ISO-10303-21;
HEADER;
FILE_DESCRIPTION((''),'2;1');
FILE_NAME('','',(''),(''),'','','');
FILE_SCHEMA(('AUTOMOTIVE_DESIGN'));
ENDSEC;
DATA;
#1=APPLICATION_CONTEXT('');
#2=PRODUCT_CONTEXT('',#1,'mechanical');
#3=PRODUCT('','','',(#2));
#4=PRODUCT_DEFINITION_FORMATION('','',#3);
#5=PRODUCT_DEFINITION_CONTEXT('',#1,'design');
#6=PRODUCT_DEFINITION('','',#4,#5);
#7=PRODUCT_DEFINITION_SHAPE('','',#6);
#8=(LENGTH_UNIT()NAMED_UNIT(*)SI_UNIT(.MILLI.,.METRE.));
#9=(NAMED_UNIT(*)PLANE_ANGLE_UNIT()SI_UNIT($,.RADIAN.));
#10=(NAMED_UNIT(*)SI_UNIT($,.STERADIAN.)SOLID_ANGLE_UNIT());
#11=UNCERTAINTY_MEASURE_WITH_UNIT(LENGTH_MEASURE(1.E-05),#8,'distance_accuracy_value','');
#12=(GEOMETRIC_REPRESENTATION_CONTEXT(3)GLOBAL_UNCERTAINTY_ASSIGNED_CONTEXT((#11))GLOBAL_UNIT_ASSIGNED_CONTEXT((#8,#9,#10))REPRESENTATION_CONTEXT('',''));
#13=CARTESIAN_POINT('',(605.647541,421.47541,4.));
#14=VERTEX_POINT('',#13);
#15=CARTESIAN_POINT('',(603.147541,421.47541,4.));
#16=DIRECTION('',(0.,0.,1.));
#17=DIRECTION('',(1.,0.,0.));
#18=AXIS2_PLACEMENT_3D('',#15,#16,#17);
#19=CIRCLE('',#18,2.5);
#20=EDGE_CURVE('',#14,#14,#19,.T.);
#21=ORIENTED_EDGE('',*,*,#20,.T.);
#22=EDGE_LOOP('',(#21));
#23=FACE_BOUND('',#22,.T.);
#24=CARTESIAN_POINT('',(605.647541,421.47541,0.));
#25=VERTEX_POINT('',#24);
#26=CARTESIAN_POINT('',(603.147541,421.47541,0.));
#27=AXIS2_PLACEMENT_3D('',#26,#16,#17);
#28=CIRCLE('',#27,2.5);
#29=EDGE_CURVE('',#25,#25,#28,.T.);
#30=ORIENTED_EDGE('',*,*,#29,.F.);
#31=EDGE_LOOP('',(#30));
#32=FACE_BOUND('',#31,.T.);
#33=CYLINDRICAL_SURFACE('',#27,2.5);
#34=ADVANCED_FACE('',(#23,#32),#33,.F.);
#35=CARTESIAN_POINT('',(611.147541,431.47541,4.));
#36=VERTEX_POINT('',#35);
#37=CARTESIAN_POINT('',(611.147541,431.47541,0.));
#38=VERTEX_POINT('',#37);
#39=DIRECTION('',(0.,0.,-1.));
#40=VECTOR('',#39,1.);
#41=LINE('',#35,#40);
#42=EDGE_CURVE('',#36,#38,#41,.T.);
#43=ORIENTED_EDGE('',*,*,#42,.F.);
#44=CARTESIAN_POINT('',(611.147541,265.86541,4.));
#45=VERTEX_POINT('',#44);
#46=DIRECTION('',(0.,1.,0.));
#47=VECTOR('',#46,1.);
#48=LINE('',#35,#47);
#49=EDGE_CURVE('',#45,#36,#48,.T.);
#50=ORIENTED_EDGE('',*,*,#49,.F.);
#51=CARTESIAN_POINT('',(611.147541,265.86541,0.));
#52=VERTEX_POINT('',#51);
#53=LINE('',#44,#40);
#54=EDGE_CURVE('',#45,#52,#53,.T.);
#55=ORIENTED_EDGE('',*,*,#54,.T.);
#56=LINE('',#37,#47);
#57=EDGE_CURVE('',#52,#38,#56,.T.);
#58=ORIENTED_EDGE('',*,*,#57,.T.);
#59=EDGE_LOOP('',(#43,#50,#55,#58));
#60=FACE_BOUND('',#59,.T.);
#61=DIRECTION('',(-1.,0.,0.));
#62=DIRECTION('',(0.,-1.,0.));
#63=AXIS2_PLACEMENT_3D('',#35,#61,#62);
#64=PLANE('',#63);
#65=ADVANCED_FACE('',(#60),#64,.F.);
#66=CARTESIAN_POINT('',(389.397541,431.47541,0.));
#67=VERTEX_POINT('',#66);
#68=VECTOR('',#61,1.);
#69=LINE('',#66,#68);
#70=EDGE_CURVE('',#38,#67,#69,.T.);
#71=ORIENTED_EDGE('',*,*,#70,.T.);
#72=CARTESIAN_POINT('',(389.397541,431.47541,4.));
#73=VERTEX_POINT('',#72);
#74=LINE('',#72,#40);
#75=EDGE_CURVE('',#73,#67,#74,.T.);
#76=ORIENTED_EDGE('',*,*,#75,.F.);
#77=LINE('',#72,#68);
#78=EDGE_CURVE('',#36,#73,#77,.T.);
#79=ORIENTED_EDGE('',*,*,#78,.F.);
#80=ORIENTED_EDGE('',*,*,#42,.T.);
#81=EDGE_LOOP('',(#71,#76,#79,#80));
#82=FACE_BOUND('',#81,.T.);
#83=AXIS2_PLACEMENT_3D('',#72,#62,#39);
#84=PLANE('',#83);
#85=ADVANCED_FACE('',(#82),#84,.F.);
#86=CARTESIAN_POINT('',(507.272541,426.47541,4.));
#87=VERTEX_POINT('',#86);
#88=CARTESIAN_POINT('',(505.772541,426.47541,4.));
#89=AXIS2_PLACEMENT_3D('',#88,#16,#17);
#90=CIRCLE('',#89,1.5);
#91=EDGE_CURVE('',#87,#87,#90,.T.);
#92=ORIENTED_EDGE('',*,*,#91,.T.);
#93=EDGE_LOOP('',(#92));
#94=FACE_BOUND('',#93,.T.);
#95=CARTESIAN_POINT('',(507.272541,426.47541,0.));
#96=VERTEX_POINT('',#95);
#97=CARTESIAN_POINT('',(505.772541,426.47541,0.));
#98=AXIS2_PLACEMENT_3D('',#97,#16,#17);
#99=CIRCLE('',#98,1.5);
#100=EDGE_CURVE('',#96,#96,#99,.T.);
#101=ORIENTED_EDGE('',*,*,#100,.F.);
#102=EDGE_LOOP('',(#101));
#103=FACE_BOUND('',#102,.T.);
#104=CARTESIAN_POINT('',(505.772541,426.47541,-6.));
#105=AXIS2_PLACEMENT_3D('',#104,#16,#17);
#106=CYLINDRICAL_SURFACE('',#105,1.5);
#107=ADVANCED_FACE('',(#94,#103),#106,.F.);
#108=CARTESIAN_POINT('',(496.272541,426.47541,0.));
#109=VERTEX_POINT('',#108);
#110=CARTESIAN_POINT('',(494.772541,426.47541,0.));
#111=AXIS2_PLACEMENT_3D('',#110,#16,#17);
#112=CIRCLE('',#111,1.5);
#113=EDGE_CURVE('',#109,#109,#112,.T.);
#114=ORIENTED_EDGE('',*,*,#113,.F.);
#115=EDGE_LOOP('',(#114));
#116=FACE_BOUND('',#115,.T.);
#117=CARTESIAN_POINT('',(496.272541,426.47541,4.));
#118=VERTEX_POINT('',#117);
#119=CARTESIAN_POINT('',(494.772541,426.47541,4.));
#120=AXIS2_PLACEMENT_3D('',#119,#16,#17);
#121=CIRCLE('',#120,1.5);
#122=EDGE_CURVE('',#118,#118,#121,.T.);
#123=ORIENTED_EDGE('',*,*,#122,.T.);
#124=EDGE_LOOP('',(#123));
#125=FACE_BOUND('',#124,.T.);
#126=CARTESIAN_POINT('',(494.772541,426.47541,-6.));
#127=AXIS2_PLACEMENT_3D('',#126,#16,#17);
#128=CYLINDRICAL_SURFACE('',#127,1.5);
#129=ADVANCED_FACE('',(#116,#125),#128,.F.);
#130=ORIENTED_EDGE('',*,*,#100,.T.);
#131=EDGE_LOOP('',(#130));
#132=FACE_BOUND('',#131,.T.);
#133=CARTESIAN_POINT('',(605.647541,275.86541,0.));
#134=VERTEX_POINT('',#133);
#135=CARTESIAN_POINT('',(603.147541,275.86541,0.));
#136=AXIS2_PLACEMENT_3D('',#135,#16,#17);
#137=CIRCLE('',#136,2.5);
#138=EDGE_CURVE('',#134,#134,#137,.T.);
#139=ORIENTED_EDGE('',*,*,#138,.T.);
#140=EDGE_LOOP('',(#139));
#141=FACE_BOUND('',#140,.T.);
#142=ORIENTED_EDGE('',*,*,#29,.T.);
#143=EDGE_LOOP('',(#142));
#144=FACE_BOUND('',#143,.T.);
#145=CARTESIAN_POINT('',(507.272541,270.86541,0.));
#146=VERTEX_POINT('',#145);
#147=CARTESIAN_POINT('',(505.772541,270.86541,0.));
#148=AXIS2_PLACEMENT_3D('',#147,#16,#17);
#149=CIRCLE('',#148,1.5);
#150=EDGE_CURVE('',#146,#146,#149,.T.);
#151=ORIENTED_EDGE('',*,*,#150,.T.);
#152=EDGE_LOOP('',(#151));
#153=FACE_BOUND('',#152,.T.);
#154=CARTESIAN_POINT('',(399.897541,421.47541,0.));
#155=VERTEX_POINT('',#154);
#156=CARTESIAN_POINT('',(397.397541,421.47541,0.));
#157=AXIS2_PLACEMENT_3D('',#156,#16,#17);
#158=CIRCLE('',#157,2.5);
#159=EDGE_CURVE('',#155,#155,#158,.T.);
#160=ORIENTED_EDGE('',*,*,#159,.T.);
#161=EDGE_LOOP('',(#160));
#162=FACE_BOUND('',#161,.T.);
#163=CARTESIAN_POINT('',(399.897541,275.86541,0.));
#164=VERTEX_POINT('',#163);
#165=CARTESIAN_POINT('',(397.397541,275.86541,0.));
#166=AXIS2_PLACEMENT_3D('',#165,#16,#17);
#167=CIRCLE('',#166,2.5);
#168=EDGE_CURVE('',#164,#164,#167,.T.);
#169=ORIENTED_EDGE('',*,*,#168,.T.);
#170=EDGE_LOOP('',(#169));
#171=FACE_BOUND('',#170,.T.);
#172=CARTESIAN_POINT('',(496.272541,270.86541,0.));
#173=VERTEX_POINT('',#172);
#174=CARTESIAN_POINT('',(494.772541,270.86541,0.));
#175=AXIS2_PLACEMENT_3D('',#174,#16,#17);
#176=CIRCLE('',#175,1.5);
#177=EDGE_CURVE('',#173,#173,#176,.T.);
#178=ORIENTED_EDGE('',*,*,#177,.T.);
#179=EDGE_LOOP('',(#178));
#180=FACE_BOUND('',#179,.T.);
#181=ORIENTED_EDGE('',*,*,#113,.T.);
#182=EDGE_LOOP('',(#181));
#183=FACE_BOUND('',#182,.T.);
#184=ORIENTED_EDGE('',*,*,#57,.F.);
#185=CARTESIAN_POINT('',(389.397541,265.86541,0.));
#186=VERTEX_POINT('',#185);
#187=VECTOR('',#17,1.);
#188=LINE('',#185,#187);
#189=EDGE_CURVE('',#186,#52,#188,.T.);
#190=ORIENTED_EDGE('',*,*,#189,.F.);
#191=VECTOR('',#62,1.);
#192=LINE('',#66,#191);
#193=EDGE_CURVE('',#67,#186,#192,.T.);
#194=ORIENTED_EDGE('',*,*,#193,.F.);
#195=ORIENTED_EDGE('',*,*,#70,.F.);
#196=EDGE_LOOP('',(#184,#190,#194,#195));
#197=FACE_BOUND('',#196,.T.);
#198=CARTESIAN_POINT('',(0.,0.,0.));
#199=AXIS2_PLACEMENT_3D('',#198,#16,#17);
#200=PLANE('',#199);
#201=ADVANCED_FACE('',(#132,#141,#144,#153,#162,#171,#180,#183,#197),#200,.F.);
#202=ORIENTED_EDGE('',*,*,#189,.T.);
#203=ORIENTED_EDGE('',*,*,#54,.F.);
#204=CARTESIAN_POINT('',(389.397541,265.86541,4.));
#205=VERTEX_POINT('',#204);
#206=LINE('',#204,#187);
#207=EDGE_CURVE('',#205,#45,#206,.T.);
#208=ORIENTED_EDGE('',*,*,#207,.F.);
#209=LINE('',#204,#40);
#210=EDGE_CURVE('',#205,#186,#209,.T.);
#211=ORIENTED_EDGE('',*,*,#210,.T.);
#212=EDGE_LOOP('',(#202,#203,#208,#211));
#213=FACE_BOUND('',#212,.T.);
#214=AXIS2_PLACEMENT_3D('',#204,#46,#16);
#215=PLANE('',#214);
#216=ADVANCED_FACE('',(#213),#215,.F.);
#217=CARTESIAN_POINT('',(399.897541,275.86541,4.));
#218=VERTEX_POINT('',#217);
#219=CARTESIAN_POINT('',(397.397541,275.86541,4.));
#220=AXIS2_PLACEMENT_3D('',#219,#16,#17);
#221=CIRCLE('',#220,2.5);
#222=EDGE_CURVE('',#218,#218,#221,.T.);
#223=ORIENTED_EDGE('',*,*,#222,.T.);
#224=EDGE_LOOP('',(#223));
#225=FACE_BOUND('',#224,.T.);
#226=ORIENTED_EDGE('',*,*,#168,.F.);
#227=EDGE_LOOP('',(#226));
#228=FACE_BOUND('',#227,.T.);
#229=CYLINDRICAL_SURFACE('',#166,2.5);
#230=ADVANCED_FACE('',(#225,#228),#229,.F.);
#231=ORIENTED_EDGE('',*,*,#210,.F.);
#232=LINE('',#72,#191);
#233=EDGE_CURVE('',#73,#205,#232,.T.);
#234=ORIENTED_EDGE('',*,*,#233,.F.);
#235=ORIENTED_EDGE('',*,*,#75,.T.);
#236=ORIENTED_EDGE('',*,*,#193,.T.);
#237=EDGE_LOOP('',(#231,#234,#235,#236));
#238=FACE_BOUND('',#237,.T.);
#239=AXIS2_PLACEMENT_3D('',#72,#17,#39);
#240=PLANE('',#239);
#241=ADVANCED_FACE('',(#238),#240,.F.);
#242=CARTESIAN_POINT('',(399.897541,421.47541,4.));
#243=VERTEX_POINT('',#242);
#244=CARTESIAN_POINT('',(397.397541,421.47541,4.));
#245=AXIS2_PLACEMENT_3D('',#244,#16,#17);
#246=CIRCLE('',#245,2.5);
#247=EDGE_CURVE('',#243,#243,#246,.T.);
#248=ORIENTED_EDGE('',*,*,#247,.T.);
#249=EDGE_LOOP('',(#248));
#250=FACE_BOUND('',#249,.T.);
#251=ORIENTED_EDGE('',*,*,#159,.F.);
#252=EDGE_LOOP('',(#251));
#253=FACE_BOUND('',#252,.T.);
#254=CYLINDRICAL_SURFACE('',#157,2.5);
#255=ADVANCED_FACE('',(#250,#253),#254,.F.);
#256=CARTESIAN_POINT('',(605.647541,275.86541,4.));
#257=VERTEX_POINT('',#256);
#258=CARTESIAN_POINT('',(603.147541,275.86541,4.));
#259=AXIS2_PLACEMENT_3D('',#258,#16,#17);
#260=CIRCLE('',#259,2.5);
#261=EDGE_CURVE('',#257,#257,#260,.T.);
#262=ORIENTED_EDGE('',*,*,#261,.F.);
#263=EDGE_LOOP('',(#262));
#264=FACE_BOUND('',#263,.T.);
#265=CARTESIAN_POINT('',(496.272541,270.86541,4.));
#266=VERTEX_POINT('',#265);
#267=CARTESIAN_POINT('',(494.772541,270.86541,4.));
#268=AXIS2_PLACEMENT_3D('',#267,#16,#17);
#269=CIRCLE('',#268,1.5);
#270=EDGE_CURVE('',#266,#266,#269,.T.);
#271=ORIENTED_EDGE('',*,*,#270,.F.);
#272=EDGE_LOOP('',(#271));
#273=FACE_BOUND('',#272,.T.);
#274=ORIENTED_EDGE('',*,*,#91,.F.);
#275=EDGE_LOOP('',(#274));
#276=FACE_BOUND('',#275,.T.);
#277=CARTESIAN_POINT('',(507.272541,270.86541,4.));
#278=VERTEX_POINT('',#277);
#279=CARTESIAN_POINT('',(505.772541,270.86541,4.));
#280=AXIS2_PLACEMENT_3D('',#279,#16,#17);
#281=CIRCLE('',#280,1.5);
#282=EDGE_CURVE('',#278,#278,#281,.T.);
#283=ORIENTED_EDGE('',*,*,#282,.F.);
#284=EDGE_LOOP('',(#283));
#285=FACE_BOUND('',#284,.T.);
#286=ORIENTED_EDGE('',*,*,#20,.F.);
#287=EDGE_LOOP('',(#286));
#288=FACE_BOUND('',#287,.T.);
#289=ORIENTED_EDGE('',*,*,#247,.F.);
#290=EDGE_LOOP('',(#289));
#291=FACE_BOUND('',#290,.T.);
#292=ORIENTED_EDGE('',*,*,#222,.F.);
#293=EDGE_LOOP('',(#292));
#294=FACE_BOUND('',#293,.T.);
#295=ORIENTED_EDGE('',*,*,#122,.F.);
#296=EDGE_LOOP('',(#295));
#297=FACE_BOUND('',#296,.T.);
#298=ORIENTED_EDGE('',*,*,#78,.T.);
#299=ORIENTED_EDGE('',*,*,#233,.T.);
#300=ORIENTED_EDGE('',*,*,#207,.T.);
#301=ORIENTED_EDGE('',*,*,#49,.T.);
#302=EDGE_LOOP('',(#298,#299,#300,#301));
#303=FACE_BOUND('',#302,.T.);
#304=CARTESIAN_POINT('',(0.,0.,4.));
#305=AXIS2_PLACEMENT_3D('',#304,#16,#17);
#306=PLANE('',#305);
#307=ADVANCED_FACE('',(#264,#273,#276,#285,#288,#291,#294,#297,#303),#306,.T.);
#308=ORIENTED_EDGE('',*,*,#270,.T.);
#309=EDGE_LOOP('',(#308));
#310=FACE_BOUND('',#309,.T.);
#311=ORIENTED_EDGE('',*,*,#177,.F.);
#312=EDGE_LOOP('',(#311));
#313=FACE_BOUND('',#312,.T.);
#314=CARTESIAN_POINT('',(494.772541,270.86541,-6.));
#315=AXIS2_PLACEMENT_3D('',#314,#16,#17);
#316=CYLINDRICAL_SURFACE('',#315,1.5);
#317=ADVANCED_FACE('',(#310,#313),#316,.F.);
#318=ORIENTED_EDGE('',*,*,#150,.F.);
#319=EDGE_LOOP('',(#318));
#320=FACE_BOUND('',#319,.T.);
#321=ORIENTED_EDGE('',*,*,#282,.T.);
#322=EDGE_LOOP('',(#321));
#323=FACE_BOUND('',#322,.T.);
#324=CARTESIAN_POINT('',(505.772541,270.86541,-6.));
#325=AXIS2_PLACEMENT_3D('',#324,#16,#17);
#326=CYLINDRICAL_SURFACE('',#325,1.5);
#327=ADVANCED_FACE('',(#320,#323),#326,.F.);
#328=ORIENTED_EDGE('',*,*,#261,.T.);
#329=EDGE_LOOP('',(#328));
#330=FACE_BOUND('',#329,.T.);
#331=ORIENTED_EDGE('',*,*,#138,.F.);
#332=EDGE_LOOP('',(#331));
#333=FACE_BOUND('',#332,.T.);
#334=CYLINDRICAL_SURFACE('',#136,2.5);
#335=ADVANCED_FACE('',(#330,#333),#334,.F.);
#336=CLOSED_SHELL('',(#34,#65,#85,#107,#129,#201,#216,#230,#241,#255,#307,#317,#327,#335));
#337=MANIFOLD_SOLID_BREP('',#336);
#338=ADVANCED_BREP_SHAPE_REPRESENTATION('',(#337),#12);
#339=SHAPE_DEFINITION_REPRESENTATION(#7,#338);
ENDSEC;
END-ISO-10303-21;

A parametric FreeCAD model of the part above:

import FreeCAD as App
import Part
import Sketcher

V = App.Vector
Q = App.Units.Quantity


def add_polygon(sketch, points):
    """Adds a closed chain of lines whose ends are joined by coincident constraints."""
    first, n = sketch.GeometryCount, len(points)
    for a, b in zip(points, points[1:] + points[:1]):
        sketch.addGeometry(Part.LineSegment(App.Vector(*a, 0), App.Vector(*b, 0)), False)
    for i in range(n):
        sketch.addConstraint(Sketcher.Constraint("Coincident", first + i, 2, first + (i + 1) % n, 1))

doc = App.newDocument("Part")
body = doc.addObject("PartDesign::Body", "Body")

# Sketch on XY plane
sketch1 = doc.addObject("Sketcher::SketchObject", "Sketch")
body.addObject(sketch1)
sketch1.AttachmentSupport = (doc.XY_Plane, [""])
sketch1.MapMode = "FlatFace"
add_polygon(sketch1, [(389, 431), (389, 266), (611, 266), (611, 431)])  # lines 0-3
sketch1.addConstraint([
    Sketcher.Constraint("Vertical", 0),
    Sketcher.Constraint("Horizontal", 1),
    Sketcher.Constraint("Vertical", 2),
    Sketcher.Constraint("Horizontal", 3),
    Sketcher.Constraint("DistanceX", 1, 1, 1, 2, Q("221.75 mm")),
    Sketcher.Constraint("DistanceY", 0, 2, 0, 1, Q("165.61 mm")),
    Sketcher.Constraint("DistanceX", -1, 1, 0, 2, Q("389.397541 mm")),
    Sketcher.Constraint("DistanceY", -1, 1, 0, 2, Q("265.86541 mm")),
])
pad1 = doc.addObject("PartDesign::Pad", "Pad")
body.addObject(pad1)
pad1.Profile = sketch1
pad1.Length = 4

# Sketch on XY plane
sketch2 = doc.addObject("Sketcher::SketchObject", "Sketch001")
body.addObject(sketch2)
sketch2.AttachmentSupport = (doc.XY_Plane, [""])
sketch2.MapMode = "FlatFace"
sketch2.AttachmentOffset = App.Placement(V(0, 0, 4), App.Rotation())
sketch2.addGeometry([
    Part.Circle(V(397.4, 421.5, 0), V(0, 0, 1), 2.5),
    Part.Circle(V(603.1, 421.5, 0), V(0, 0, 1), 2.5),
    Part.Circle(V(603.1, 275.9, 0), V(0, 0, 1), 2.5),
    Part.Circle(V(397.4, 275.9, 0), V(0, 0, 1), 2.5),
], False)
sketch2.addConstraint([
    Sketcher.Constraint("Equal", 0, 1),
    Sketcher.Constraint("Equal", 1, 2),
    Sketcher.Constraint("Equal", 2, 3),
    Sketcher.Constraint("Horizontal", 0, 3, 1, 3),
    Sketcher.Constraint("Horizontal", 2, 3, 3, 3),
    Sketcher.Constraint("Vertical", 1, 3, 2, 3),
    Sketcher.Constraint("Vertical", 0, 3, 3, 3),
    Sketcher.Constraint("Diameter", 0, Q("5 mm")),
    Sketcher.Constraint("DistanceX", 0, 3, 1, 3, Q("205.75 mm")),
    Sketcher.Constraint("DistanceY", 2, 3, 1, 3, Q("145.61 mm")),
    Sketcher.Constraint("DistanceX", -1, 1, 0, 3, Q("397.397541 mm")),
    Sketcher.Constraint("DistanceY", -1, 1, 0, 3, Q("421.47541 mm")),
])
pocket1 = doc.addObject("PartDesign::Pocket", "Pocket")
body.addObject(pocket1)
pocket1.Profile = sketch2
pocket1.Type = "ThroughAll"

# Sketch on XY plane
sketch3 = doc.addObject("Sketcher::SketchObject", "Sketch002")
body.addObject(sketch3)
sketch3.AttachmentSupport = (doc.XY_Plane, [""])
sketch3.MapMode = "FlatFace"
sketch3.AttachmentOffset = App.Placement(V(0, 0, 4), App.Rotation())
sketch3.addGeometry([
    Part.Circle(V(494.8, 270.9, 0), V(0, 0, 1), 1.5),
    Part.Circle(V(505.8, 270.9, 0), V(0, 0, 1), 1.5),
    Part.Circle(V(494.8, 426.5, 0), V(0, 0, 1), 1.5),
    Part.Circle(V(505.8, 426.5, 0), V(0, 0, 1), 1.5),
], False)
sketch3.addConstraint([
    Sketcher.Constraint("Equal", 0, 1),
    Sketcher.Constraint("Equal", 1, 2),
    Sketcher.Constraint("Equal", 2, 3),
    Sketcher.Constraint("Horizontal", 0, 3, 1, 3),
    Sketcher.Constraint("Horizontal", 2, 3, 3, 3),
    Sketcher.Constraint("Vertical", 0, 3, 2, 3),
    Sketcher.Constraint("Vertical", 1, 3, 3, 3),
    Sketcher.Constraint("Diameter", 0, Q("3 mm")),
    Sketcher.Constraint("DistanceX", 0, 3, 1, 3, Q("11 mm")),
    Sketcher.Constraint("DistanceY", 0, 3, 2, 3, Q("155.61 mm")),
    Sketcher.Constraint("DistanceX", -1, 1, 0, 3, Q("494.772541 mm")),
    Sketcher.Constraint("DistanceY", -1, 1, 0, 3, Q("270.86541 mm")),
])
pocket2 = doc.addObject("PartDesign::Pocket", "Pocket001")
body.addObject(pocket2)
pocket2.Profile = sketch3
pocket2.Length = 10

doc.recompute()
